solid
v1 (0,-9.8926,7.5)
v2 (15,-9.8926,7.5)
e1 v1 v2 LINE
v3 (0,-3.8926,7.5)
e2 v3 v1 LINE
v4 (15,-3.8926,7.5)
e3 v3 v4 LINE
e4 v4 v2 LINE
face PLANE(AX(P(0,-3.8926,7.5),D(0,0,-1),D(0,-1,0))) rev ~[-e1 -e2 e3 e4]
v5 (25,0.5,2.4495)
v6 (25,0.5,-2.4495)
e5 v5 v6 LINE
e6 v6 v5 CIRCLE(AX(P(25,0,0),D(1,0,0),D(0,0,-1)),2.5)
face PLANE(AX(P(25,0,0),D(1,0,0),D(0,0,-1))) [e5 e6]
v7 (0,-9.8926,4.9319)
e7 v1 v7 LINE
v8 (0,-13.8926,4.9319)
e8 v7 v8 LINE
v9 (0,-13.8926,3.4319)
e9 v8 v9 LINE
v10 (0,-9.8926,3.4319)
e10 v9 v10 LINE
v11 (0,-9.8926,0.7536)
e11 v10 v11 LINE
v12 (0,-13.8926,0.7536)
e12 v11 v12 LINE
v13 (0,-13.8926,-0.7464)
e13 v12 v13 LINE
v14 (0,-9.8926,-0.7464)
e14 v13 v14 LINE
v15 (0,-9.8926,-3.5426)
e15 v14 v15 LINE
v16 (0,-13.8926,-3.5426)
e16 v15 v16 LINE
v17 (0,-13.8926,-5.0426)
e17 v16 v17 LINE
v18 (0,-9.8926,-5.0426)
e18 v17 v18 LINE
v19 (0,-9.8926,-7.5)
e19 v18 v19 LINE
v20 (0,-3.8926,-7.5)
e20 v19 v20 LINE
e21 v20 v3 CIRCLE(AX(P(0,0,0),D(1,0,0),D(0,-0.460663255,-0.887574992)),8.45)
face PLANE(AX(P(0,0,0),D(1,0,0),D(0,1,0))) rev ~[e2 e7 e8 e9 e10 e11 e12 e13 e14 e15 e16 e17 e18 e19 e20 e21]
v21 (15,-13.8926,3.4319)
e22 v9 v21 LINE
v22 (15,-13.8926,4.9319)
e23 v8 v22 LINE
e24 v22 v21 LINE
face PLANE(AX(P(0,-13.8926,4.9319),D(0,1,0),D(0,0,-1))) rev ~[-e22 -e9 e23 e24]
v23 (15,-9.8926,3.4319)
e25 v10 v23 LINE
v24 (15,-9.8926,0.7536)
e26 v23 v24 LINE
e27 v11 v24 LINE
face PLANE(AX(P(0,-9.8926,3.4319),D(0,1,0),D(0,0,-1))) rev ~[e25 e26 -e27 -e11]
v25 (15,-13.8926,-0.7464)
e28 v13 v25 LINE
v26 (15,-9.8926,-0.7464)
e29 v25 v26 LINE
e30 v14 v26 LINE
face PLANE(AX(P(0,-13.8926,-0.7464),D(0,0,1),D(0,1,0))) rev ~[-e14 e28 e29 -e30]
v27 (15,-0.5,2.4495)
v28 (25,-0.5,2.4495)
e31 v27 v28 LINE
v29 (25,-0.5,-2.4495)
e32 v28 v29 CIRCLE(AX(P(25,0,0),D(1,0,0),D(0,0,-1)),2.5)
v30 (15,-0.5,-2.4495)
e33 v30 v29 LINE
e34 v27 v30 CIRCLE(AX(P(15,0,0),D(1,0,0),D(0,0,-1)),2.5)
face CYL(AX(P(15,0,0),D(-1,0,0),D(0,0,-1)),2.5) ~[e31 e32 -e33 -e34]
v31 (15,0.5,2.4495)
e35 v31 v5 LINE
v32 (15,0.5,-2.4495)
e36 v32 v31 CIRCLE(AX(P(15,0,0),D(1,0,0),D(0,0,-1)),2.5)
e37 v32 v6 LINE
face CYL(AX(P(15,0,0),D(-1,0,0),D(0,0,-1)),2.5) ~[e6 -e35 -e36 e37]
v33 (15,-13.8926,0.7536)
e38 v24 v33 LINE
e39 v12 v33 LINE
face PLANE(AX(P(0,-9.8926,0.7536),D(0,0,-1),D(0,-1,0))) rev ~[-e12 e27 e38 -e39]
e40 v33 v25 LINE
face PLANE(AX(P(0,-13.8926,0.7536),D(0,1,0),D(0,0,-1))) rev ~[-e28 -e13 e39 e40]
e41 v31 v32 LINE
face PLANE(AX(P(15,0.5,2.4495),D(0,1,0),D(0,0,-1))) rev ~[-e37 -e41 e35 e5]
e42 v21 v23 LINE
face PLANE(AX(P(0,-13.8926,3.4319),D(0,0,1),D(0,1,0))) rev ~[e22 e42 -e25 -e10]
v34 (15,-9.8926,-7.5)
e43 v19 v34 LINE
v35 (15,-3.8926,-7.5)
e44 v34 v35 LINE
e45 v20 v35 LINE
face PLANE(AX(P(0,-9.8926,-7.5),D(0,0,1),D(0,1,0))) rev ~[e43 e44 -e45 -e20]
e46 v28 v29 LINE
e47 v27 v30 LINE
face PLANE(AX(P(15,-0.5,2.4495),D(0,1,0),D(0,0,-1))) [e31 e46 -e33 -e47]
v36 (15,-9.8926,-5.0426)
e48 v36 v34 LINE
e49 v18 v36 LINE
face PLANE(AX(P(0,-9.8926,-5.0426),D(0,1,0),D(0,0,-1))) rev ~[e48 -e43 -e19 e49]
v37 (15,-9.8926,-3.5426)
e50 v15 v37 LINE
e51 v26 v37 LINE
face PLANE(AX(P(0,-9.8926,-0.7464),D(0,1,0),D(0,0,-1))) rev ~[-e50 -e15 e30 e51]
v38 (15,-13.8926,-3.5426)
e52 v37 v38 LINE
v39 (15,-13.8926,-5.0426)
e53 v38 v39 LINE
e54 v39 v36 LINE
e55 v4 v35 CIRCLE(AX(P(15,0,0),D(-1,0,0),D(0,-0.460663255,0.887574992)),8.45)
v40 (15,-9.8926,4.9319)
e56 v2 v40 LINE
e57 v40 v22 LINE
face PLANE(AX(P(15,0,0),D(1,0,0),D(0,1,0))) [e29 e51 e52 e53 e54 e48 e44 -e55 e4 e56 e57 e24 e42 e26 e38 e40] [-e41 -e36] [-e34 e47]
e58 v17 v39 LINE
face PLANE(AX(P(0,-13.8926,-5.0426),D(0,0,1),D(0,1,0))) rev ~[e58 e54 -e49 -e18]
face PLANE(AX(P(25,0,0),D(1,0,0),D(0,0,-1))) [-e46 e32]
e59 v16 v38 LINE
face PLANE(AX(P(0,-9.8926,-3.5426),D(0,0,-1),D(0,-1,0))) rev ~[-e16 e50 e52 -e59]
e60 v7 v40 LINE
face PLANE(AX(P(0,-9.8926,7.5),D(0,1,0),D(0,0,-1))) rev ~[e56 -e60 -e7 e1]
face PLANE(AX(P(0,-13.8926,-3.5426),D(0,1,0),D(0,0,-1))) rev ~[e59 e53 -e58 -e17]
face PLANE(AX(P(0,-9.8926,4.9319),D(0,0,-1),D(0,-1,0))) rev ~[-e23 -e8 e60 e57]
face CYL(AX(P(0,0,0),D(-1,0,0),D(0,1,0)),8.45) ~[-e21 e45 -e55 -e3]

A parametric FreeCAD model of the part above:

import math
import FreeCAD as App
import Part
import Sketcher

doc = App.newDocument("Part")
params = doc.addObject("Spreadsheet::Sheet", "Params")
for row, (alias, value) in enumerate([
    ("sketch1_diameter", "16.9 mm"),
    ("pad1_length", "15 mm"),
    ("sketch2_radius", "2.5 mm"),
    ("pad2_length", "10 mm"),
    ("sketch3_width", "6 mm"),
    ("sketch3_width2", "4 mm"),
    ("sketch3_height", "1.5 mm"),
    ("sketch3_radius", "8.45 mm"),
    ("pad3_length", "15 mm"),
], start=1):
    params.set(f"A{row}", alias)
    params.set(f"B{row}", "=" + value)
    params.setAlias(f"B{row}", alias)

body = doc.addObject("PartDesign::Body", "Body")

# Sketch on YZ plane
sketch1 = body.newObject("Sketcher::SketchObject", "Sketch")
sketch1.AttachmentSupport = (doc.getObject("YZ_Plane"), [""])
sketch1.MapMode = "FlatFace"
sketch1.addGeometry(Part.Circle(App.Vector(0, 0, 0), App.Vector(0, 0, 1), 8.45), False)
sketch1.addConstraint([
    Sketcher.Constraint("Coincident", 0, 3, -1, 1),
    Sketcher.Constraint("Diameter", 0, 16.9),
])
sketch1.setExpression("Constraints[1]", "Params.sketch1_diameter")
pad1 = body.newObject("PartDesign::Pad", "Pad")
pad1.Profile = sketch1
pad1.setExpression("Length", "Params.pad1_length")

# Sketch on YZ plane
sketch2 = body.newObject("Sketcher::SketchObject", "Sketch001")
sketch2.AttachmentSupport = (doc.getObject("YZ_Plane"), [""])
sketch2.MapMode = "FlatFace"
sketch2.AttachmentOffset = App.Placement(App.Vector(0, 0, 15), App.Rotation())
sketch2.addGeometry([
    Part.LineSegment(App.Vector(0.5, 2.4495, 0), App.Vector(0.5, -2.4495, 0)),
    Part.ArcOfCircle(Part.Circle(App.Vector(0, 0, 0), App.Vector(0, 0, 1), 2.5), math.radians(-78.463088), math.radians(78.463088)),
    Part.ArcOfCircle(Part.Circle(App.Vector(0, 0, 0), App.Vector(0, 0, 1), 2.5), math.radians(101.536912), math.radians(258.463088)),
    Part.LineSegment(App.Vector(-0.5, 2.4495, 0), App.Vector(-0.5, -2.4495, 0)),
], False)
sketch2.addConstraint([
    Sketcher.Constraint("Coincident", 0, 1, 1, 2),
    Sketcher.Constraint("Coincident", 1, 1, 0, 2),
    Sketcher.Constraint("Coincident", 2, 1, 3, 1),
    Sketcher.Constraint("Coincident", 3, 2, 2, 2),
    Sketcher.Constraint("Vertical", 0),
    Sketcher.Constraint("Vertical", 3),
    Sketcher.Constraint("Coincident", 1, 3, -1, 1),
    Sketcher.Constraint("Coincident", 2, 3, -1, 1),
    Sketcher.Constraint("Equal", 1, 2),
    Sketcher.Constraint("Horizontal", 0, 1, 2, 1),
    Sketcher.Constraint("Radius", 1, 2.5),
    Sketcher.Constraint("DistanceX", 2, 1, 0, 1, 1.0),
])
sketch2.setExpression("Constraints[10]", "Params.sketch2_radius")
pad2 = body.newObject("PartDesign::Pad", "Pad001")
pad2.Profile = sketch2
pad2.setExpression("Length", "Params.pad2_length")

# Sketch on YZ plane
sketch3 = body.newObject("Sketcher::SketchObject", "Sketch002")
sketch3.AttachmentSupport = (doc.getObject("YZ_Plane"), [""])
sketch3.MapMode = "FlatFace"
sketch3.addGeometry([
    Part.ArcOfCircle(Part.Circle(App.Vector(0, 0, 0), App.Vector(0, 0, 1), 8.45), math.radians(117.429914), math.radians(242.570086)),  # 0
    Part.LineSegment(App.Vector(-3.8926, -7.5, 0), App.Vector(-9.8926, -7.5, 0)),  # 1
    Part.LineSegment(App.Vector(-9.8926, -7.5, 0), App.Vector(-9.8926, -5.0426, 0)),  # 2
    Part.LineSegment(App.Vector(-9.8926, -5.0426, 0), App.Vector(-13.8926, -5.0426, 0)),  # 3
    Part.LineSegment(App.Vector(-13.8926, -5.0426, 0), App.Vector(-13.8926, -3.5426, 0)),  # 4
    Part.LineSegment(App.Vector(-13.8926, -3.5426, 0), App.Vector(-9.8926, -3.5426, 0)),  # 5
    Part.LineSegment(App.Vector(-9.8926, -3.5426, 0), App.Vector(-9.8926, -0.7464, 0)),  # 6
    Part.LineSegment(App.Vector(-9.8926, -0.7464, 0), App.Vector(-13.8926, -0.7464, 0)),  # 7
    Part.LineSegment(App.Vector(-13.8926, -0.7464, 0), App.Vector(-13.8926, 0.7536, 0)),  # 8
    Part.LineSegment(App.Vector(-13.8926, 0.7536, 0), App.Vector(-9.8926, 0.7536, 0)),  # 9
    Part.LineSegment(App.Vector(-9.8926, 0.7536, 0), App.Vector(-9.8926, 3.4319, 0)),  # 10
    Part.LineSegment(App.Vector(-9.8926, 3.4319, 0), App.Vector(-13.8926, 3.4319, 0)),  # 11
    Part.LineSegment(App.Vector(-13.8926, 3.4319, 0), App.Vector(-13.8926, 4.9319, 0)),  # 12
    Part.LineSegment(App.Vector(-13.8926, 4.9319, 0), App.Vector(-9.8926, 4.9319, 0)),  # 13
    Part.LineSegment(App.Vector(-9.8926, 4.9319, 0), App.Vector(-9.8926, 7.5, 0)),  # 14
    Part.LineSegment(App.Vector(-9.8926, 7.5, 0), App.Vector(-3.8926, 7.5, 0)),  # 15
], False)
sketch3.addConstraint([
    Sketcher.Constraint("Coincident", 0, 2, 1, 1),
    Sketcher.Constraint("Coincident", 1, 2, 2, 1),
    Sketcher.Constraint("Coincident", 2, 2, 3, 1),
    Sketcher.Constraint("Coincident", 3, 2, 4, 1),
    Sketcher.Constraint("Coincident", 4, 2, 5, 1),
    Sketcher.Constraint("Coincident", 5, 2, 6, 1),
    Sketcher.Constraint("Coincident", 6, 2, 7, 1),
    Sketcher.Constraint("Coincident", 7, 2, 8, 1),
    Sketcher.Constraint("Coincident", 8, 2, 9, 1),
    Sketcher.Constraint("Coincident", 9, 2, 10, 1),
    Sketcher.Constraint("Coincident", 10, 2, 11, 1),
    Sketcher.Constraint("Coincident", 11, 2, 12, 1),
    Sketcher.Constraint("Coincident", 12, 2, 13, 1),
    Sketcher.Constraint("Coincident", 13, 2, 14, 1),
    Sketcher.Constraint("Coincident", 14, 2, 15, 1),
    Sketcher.Constraint("Coincident", 15, 2, 0, 1),
    Sketcher.Constraint("Horizontal", 1),
    Sketcher.Constraint("Vertical", 2),
    Sketcher.Constraint("Horizontal", 3),
    Sketcher.Constraint("Vertical", 4),
    Sketcher.Constraint("Horizontal", 5),
    Sketcher.Constraint("Vertical", 6),
    Sketcher.Constraint("Horizontal", 7),
    Sketcher.Constraint("Vertical", 8),
    Sketcher.Constraint("Horizontal", 9),
    Sketcher.Constraint("Vertical", 10),
    Sketcher.Constraint("Horizontal", 11),
    Sketcher.Constraint("Vertical", 12),
    Sketcher.Constraint("Horizontal", 13),
    Sketcher.Constraint("Vertical", 14),
    Sketcher.Constraint("Horizontal", 15),
    Sketcher.Constraint("Coincident", 0, 3, -1, 1),
    Sketcher.Constraint("Symmetric", 1, 2, 14, 2, -1),
    Sketcher.Constraint("Vertical", 2, 2, 5, 2),
    Sketcher.Constraint("Vertical", 4, 2, 7, 2),
    Sketcher.Constraint("Vertical", 6, 2, 9, 2),
    Sketcher.Constraint("Vertical", 8, 2, 11, 2),
    Sketcher.Constraint("Equal", 4, 8),
    Sketcher.Constraint("Equal", 8, 12),
    Sketcher.Constraint("DistanceX", 1, 2, 1, 1, 6.0),
    Sketcher.Constraint("DistanceX", 3, 2, 3, 1, 4.0),
    Sketcher.Constraint("DistanceY", 4, 1, 4, 2, 1.5),
    Sketcher.Constraint("Radius", 0, 8.45),
    Sketcher.Constraint("DistanceY", 0, 2, -1, 1, 7.5),
    Sketcher.Constraint("DistanceY", 14, 1, 14, 2, 2.568),
    Sketcher.Constraint("DistanceY", 2, 1, 2, 2, 2.4574),
    Sketcher.Constraint("DistanceY", 6, 1, 6, 2, 2.7962),
])
sketch3.setExpression("Constraints[39]", "Params.sketch3_width")
sketch3.setExpression("Constraints[40]", "Params.sketch3_width2")
sketch3.setExpression("Constraints[41]", "Params.sketch3_height")
sketch3.setExpression("Constraints[42]", "Params.sketch3_radius")
pad3 = body.newObject("PartDesign::Pad", "Pad002")
pad3.Profile = sketch3
pad3.setExpression("Length", "Params.pad3_length")

doc.recompute()
